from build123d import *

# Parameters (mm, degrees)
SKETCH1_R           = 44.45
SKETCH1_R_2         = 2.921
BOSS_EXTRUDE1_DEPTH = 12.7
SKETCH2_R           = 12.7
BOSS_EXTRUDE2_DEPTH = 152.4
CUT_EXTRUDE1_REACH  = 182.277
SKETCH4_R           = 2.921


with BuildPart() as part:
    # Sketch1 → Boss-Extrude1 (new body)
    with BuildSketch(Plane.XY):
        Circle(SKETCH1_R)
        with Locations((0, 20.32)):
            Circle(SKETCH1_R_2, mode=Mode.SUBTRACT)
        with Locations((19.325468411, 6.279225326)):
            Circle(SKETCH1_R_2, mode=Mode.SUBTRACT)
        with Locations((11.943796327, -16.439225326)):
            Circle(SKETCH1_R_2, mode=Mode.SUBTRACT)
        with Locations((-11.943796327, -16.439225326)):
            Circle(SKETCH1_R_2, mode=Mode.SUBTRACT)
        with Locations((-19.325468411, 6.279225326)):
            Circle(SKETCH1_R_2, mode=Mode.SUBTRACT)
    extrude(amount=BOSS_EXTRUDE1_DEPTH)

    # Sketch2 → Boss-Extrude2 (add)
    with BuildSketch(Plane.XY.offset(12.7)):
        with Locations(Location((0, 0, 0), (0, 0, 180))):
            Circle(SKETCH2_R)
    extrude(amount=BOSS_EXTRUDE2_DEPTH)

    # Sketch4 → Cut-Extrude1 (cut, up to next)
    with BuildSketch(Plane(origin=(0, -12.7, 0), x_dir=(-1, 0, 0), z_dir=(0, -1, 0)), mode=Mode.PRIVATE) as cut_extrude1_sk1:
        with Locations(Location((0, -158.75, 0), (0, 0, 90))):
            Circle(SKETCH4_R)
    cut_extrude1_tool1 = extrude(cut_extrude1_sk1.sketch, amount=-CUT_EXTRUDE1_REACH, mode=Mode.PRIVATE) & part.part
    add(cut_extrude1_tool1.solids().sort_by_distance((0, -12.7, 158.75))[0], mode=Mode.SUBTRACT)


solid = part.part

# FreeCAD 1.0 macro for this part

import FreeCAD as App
import Part
import Sketcher
Q = App.Units.Quantity

doc = App.newDocument("Part")
body = doc.addObject("PartDesign::Body", "Body")

# Sketch on XY plane
sketch1 = body.newObject("Sketcher::SketchObject", "Sketch")
sketch1.AttachmentSupport = (doc.getObject("XY_Plane"), [""])
sketch1.MapMode = "FlatFace"
sketch1.addGeometry(Part.Circle(App.Vector(0, 0, 0), App.Vector(0, 0, 1), 44.5), False)
sketch1.addGeometry(Part.Circle(App.Vector(-11.9, -16.4, 0), App.Vector(0, 0, 1), 2.9), False)
sketch1.addGeometry(Part.Circle(App.Vector(11.9, -16.4, 0), App.Vector(0, 0, 1), 2.9), False)
sketch1.addGeometry(Part.Circle(App.Vector(-19.3, 6.3, 0), App.Vector(0, 0, 1), 2.9), False)
sketch1.addGeometry(Part.Circle(App.Vector(0, 20.3, 0), App.Vector(0, 0, 1), 2.9), False)
sketch1.addGeometry(Part.Circle(App.Vector(19.3, 6.3, 0), App.Vector(0, 0, 1), 2.9), False)
sketch1.addConstraint(Sketcher.Constraint("Coincident", 0, 3, -1, 1))
sketch1.addConstraint(Sketcher.Constraint("Equal", 1, 2))
sketch1.addConstraint(Sketcher.Constraint("Equal", 2, 3))
sketch1.addConstraint(Sketcher.Constraint("Equal", 3, 4))
sketch1.addConstraint(Sketcher.Constraint("Equal", 4, 5))
sketch1.addConstraint(Sketcher.Constraint("Symmetric", 1, 3, 2, 3, -2))
sketch1.addConstraint(Sketcher.Constraint("Symmetric", 3, 3, 5, 3, -2))
sketch1.addConstraint(Sketcher.Constraint("PointOnObject", 4, 3, -2))
sketch1.addConstraint(Sketcher.Constraint("Diameter", 0, Q("3.5 in")))
sketch1.addConstraint(Sketcher.Constraint("Diameter", 1, Q("0.23 in")))
sketch1.addConstraint(Sketcher.Constraint("DistanceY", -1, 1, 4, 3, Q("0.8 in")))
sketch1.addConstraint(Sketcher.Constraint("DistanceX", 3, 3, -1, 1, 19.325468))
sketch1.addConstraint(Sketcher.Constraint("DistanceY", 1, 3, 3, 3, 22.718451))
sketch1.addConstraint(Sketcher.Constraint("DistanceX", 1, 3, -1, 1, 11.943796))
sketch1.addConstraint(Sketcher.Constraint("DistanceY", 1, 3, -1, 1, 16.439225))
pad1 = body.newObject("PartDesign::Pad", "Pad")
pad1.Profile = sketch1
pad1.Length = Q("0.5 in")

# Sketch on XY plane
sketch2 = body.newObject("Sketcher::SketchObject", "Sketch001")
sketch2.AttachmentSupport = (doc.getObject("XY_Plane"), [""])
sketch2.MapMode = "FlatFace"
sketch2.AttachmentOffset = App.Placement(App.Vector(0, 0, 0.5 * 25.4), App.Rotation())
sketch2.addGeometry(Part.Circle(App.Vector(0, 0, 0), App.Vector(0, 0, 1), 13), False)
sketch2.addConstraint(Sketcher.Constraint("Coincident", 0, 3, -1, 1))
sketch2.addConstraint(Sketcher.Constraint("Diameter", 0, Q("1 in")))
pad2 = body.newObject("PartDesign::Pad", "Pad001")
pad2.Profile = sketch2
pad2.Length = Q("6 in")

# Sketch on XZ plane
sketch3 = body.newObject("Sketcher::SketchObject", "Sketch002")
sketch3.AttachmentSupport = (doc.getObject("XZ_Plane"), [""])
sketch3.MapMode = "FlatFace"
sketch3.AttachmentOffset = App.Placement(App.Vector(0, 0, 0.5 * 25.4), App.Rotation())
sketch3.addGeometry(Part.Circle(App.Vector(0, 158.8, 0), App.Vector(0, 0, 1), 2.9), False)
sketch3.addConstraint(Sketcher.Constraint("PointOnObject", 0, 3, -2))
sketch3.addConstraint(Sketcher.Constraint("Diameter", 0, Q("0.23 in")))
sketch3.addConstraint(Sketcher.Constraint("DistanceY", -1, 1, 0, 3, Q("6.25 in")))
pocket1 = body.newObject("PartDesign::Pocket", "Pocket")
pocket1.Profile = sketch3
pocket1.Length = Q("1 in")

doc.recompute()
